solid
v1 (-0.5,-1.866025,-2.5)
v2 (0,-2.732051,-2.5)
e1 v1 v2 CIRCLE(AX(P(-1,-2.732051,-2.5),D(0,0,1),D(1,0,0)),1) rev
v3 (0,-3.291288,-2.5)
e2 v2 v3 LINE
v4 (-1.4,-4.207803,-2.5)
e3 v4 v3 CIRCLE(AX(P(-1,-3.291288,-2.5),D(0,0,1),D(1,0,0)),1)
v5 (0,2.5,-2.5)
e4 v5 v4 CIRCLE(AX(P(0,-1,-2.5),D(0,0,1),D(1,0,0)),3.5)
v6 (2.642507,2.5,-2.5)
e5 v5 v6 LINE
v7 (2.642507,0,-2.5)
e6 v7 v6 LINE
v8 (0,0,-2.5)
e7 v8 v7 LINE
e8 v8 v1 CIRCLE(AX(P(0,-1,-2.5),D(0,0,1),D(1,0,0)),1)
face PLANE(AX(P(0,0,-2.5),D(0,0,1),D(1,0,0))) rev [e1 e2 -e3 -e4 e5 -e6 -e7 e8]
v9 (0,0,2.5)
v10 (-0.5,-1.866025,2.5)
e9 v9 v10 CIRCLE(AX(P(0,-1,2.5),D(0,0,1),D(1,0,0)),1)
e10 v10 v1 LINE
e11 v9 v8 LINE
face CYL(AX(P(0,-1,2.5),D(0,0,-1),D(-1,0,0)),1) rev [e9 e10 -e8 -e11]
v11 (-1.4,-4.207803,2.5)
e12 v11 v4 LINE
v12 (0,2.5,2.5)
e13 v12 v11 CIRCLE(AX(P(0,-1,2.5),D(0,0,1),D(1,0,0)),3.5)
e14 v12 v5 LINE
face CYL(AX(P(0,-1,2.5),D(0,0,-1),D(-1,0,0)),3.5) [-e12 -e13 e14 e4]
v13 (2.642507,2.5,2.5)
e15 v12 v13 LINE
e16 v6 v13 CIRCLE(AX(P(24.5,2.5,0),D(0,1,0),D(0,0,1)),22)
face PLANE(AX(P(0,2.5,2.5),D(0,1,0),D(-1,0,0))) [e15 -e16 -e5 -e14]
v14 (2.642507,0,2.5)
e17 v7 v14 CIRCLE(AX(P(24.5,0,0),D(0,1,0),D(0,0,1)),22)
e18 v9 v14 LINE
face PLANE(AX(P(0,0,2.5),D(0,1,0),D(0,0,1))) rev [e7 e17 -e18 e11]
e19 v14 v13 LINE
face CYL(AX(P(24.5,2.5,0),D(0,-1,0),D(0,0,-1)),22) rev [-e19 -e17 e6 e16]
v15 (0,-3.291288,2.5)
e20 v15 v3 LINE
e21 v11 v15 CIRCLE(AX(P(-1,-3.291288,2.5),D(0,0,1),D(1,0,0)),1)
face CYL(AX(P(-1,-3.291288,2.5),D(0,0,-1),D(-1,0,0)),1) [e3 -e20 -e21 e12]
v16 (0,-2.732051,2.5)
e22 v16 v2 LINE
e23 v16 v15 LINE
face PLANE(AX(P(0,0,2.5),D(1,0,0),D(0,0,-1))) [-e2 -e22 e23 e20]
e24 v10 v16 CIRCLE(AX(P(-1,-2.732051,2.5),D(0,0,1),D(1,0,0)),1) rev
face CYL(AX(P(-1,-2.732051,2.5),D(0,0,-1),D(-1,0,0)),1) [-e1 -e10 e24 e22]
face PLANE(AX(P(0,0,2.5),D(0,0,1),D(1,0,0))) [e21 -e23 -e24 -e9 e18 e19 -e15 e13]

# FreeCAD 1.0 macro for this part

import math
import FreeCAD as App
import Part
import Sketcher
from FreeCAD import Vector

doc = App.newDocument("Part")
body = doc.addObject("PartDesign::Body", "Body")

# Sketch on XY plane
sketch1 = body.newObject("Sketcher::SketchObject", "Sketch")
sketch1.AttachmentSupport = (doc.getObject("XY_Plane"), [""])
sketch1.MapMode = "FlatFace"
sketch1.addGeometry(Part.LineSegment(Vector(0, -3.3, 0), Vector(0, -2.7, 0)), False)
sketch1.addGeometry(Part.ArcOfCircle(Part.Circle(Vector(-1, -2.7, 0), Vector(0, 0, 1), 1), math.radians(0), math.radians(60)), False)
sketch1.addGeometry(Part.ArcOfCircle(Part.Circle(Vector(0, -1, 0), Vector(0, 0, 1), 1), math.radians(90), math.radians(240)), False)
sketch1.addGeometry(Part.LineSegment(Vector(0, 0, 0), Vector(6.8, 0, 0)), False)
sketch1.addGeometry(Part.LineSegment(Vector(6.8, 0, 0), Vector(6.8, 2.5, 0)), False)
sketch1.addGeometry(Part.LineSegment(Vector(6.8, 2.5, 0), Vector(0, 2.5, 0)), False)
sketch1.addGeometry(Part.ArcOfCircle(Part.Circle(Vector(0, -1, 0), Vector(0, 0, 1), 3.5), math.radians(90), math.radians(246)), False)
sketch1.addGeometry(Part.ArcOfCircle(Part.Circle(Vector(-1, -3.3, 0), Vector(0, 0, 1), 1), math.radians(-114), math.radians(0)), False)
sketch1.addConstraint(Sketcher.Constraint("Tangent", 0, 2, 1, 1))
sketch1.addConstraint(Sketcher.Constraint("Tangent", 1, 2, 2, 2))
sketch1.addConstraint(Sketcher.Constraint("Tangent", 2, 1, 3, 1))
sketch1.addConstraint(Sketcher.Constraint("Coincident", 3, 2, 4, 1))
sketch1.addConstraint(Sketcher.Constraint("Coincident", 4, 2, 5, 1))
sketch1.addConstraint(Sketcher.Constraint("Tangent", 5, 2, 6, 1))
sketch1.addConstraint(Sketcher.Constraint("Tangent", 6, 2, 7, 1))
sketch1.addConstraint(Sketcher.Constraint("Tangent", 7, 2, 0, 1))
sketch1.addConstraint(Sketcher.Constraint("Vertical", 0))
sketch1.addConstraint(Sketcher.Constraint("Horizontal", 3))
sketch1.addConstraint(Sketcher.Constraint("Vertical", 4))
sketch1.addConstraint(Sketcher.Constraint("Horizontal", 5))
sketch1.addConstraint(Sketcher.Constraint("Coincident", 2, 1, -1, 1))
sketch1.addConstraint(Sketcher.Constraint("Coincident", 6, 3, 2, 3))
sketch1.addConstraint(Sketcher.Constraint("Equal", 1, 2))
sketch1.addConstraint(Sketcher.Constraint("Equal", 2, 7))
sketch1.addConstraint(Sketcher.Constraint("PointOnObject", 0, 2, -2))
sketch1.addConstraint(Sketcher.Constraint("Radius", 1, 1.0))
sketch1.addConstraint(Sketcher.Constraint("Radius", 6, 3.5))
sketch1.addConstraint(Sketcher.Constraint("DistanceX", 3, 1, 3, 2, 6.753938))
pad1 = body.newObject("PartDesign::Pad", "Pad")
pad1.Profile = sketch1
pad1.Length = 5
pad1.Midplane = True

# Sketch on XZ plane
sketch2 = body.newObject("Sketcher::SketchObject", "Sketch001")
sketch2.AttachmentSupport = (doc.getObject("XZ_Plane"), [""])
sketch2.MapMode = "FlatFace"
sketch2.addGeometry(Part.Circle(Vector(24, 0, 0), Vector(0, 0, 1), 22), False)
sketch2.addConstraint(Sketcher.Constraint("PointOnObject", 0, 3, -1))
sketch2.addConstraint(Sketcher.Constraint("Diameter", 0, 44.0))
sketch2.addConstraint(Sketcher.Constraint("DistanceX", -1, 1, 0, 3, 24.5))
pocket1 = body.newObject("PartDesign::Pocket", "Pocket")
pocket1.Profile = sketch2
pocket1.Type = "ThroughAll"

doc.recompute()
